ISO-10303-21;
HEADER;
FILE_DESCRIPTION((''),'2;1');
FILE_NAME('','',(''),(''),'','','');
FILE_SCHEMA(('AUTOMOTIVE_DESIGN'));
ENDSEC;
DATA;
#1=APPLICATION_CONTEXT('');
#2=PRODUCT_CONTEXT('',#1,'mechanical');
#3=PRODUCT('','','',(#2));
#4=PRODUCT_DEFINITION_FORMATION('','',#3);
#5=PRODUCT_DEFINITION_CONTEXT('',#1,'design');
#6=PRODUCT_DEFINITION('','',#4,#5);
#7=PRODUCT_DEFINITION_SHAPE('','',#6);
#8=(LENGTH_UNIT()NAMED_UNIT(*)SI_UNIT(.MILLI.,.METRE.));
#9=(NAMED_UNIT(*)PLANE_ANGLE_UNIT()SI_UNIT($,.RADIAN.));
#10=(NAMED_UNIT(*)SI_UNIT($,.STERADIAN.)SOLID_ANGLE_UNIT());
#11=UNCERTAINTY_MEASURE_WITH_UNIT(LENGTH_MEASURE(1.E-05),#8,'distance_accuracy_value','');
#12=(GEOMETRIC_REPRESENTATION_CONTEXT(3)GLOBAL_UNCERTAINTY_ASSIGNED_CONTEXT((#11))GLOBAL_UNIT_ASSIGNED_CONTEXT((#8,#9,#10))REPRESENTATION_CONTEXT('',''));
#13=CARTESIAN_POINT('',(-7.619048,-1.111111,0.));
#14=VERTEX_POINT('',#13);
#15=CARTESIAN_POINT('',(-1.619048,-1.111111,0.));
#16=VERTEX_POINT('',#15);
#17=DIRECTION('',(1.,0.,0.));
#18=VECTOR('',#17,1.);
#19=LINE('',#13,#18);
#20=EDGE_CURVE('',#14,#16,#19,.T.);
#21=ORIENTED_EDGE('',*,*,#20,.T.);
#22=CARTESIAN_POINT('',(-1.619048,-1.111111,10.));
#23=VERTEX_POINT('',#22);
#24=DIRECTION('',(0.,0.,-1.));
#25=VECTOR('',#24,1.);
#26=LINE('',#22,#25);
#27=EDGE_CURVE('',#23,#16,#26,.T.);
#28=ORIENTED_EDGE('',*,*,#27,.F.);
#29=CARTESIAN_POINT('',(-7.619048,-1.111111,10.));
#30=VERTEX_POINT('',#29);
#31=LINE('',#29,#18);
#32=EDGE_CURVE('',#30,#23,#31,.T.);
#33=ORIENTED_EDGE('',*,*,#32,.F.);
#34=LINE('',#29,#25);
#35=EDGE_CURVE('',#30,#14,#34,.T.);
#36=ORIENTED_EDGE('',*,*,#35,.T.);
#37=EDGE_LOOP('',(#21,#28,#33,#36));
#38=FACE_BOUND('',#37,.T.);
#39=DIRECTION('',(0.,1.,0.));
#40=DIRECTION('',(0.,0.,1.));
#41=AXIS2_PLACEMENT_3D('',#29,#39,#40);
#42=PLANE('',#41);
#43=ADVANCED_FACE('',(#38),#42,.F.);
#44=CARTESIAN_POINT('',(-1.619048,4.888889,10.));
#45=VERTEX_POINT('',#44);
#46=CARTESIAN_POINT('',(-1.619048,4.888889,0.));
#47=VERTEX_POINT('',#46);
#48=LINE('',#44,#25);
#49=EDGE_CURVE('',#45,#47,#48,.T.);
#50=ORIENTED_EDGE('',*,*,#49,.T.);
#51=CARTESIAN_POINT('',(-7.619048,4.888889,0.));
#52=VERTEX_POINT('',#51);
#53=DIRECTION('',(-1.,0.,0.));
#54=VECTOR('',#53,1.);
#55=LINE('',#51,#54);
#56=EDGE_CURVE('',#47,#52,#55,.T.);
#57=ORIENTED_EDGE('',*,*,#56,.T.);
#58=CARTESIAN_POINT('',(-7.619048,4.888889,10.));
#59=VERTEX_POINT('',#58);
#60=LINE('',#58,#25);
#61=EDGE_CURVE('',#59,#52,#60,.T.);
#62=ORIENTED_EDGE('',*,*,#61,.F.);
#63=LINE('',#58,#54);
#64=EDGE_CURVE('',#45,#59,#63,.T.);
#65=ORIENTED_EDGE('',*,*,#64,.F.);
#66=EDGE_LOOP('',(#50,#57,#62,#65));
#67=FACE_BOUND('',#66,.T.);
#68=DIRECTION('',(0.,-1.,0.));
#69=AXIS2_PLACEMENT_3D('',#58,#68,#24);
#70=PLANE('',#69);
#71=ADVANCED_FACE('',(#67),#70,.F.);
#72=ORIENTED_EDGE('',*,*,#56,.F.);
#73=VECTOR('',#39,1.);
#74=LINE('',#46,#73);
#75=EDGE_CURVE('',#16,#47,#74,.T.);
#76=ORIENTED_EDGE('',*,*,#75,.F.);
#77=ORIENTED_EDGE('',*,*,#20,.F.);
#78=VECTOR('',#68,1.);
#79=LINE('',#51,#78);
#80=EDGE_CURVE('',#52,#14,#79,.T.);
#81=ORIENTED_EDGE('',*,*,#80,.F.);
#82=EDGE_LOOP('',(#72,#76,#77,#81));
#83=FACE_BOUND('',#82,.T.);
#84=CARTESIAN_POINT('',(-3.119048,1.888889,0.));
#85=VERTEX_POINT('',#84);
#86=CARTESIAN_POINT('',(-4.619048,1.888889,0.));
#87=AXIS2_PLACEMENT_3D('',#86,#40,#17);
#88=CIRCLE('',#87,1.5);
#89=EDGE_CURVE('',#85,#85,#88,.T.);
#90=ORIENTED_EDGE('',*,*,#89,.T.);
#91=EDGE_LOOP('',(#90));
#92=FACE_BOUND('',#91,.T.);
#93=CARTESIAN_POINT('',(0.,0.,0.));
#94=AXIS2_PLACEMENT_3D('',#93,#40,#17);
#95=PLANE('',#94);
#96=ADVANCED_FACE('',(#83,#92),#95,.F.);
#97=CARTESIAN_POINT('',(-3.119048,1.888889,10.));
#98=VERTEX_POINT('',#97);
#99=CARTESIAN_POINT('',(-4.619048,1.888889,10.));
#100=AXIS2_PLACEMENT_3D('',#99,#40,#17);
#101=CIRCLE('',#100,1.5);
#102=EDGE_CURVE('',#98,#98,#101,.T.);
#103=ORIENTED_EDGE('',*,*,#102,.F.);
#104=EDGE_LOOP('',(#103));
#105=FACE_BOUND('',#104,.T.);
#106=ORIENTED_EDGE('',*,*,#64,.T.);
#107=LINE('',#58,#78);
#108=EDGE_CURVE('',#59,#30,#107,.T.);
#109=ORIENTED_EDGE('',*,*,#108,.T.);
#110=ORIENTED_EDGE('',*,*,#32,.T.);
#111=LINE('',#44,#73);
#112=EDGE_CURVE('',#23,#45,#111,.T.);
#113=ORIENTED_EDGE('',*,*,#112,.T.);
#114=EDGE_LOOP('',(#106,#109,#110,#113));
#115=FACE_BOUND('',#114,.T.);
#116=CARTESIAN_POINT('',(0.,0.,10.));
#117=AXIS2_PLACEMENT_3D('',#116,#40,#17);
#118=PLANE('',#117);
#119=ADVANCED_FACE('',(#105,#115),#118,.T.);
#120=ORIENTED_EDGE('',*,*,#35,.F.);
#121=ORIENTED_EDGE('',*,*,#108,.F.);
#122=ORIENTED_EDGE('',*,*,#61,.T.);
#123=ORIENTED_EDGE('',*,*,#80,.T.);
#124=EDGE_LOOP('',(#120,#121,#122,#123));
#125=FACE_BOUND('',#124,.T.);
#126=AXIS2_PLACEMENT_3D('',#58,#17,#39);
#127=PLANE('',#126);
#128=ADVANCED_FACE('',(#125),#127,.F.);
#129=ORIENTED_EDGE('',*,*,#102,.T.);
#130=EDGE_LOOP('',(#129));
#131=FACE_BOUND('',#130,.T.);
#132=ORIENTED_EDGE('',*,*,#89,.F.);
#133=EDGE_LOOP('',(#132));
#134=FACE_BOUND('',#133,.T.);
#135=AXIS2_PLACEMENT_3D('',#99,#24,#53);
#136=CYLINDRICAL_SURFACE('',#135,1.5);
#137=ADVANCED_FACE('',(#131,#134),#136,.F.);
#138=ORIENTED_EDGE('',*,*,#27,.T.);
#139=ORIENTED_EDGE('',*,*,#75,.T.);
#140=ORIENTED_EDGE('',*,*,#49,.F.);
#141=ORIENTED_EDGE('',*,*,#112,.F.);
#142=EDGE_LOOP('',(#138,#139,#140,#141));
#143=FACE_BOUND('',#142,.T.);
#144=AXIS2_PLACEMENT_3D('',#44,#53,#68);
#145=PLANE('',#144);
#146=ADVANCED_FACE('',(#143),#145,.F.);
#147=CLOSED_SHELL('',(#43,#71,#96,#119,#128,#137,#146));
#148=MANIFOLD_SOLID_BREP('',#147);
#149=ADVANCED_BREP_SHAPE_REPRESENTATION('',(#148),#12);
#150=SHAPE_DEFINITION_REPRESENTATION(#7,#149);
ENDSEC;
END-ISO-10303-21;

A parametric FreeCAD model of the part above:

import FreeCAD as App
import Part
import Sketcher
from FreeCAD import Vector
Q = App.Units.Quantity

doc = App.newDocument("Part")
body = doc.addObject("PartDesign::Body", "Body")

# Sketch on XY plane
sketch1 = body.newObject("Sketcher::SketchObject", "Sketch")
sketch1.AttachmentSupport = (doc.getObject("XY_Plane"), [""])
sketch1.MapMode = "FlatFace"
sketch1.addGeometry(Part.LineSegment(Vector(-7.6, 4.9, 0), Vector(-7.6, -1.1, 0)), False)
sketch1.addGeometry(Part.LineSegment(Vector(-7.6, -1.1, 0), Vector(-1.6, -1.1, 0)), False)
sketch1.addGeometry(Part.LineSegment(Vector(-1.6, -1.1, 0), Vector(-1.6, 4.9, 0)), False)
sketch1.addGeometry(Part.LineSegment(Vector(-1.6, 4.9, 0), Vector(-7.6, 4.9, 0)), False)
sketch1.addGeometry(Part.Circle(Vector(-4.6, 1.9, 0), Vector(0, 0, 1), 1.5), False)
sketch1.addConstraint(Sketcher.Constraint("Coincident", 0, 2, 1, 1))
sketch1.addConstraint(Sketcher.Constraint("Coincident", 1, 2, 2, 1))
sketch1.addConstraint(Sketcher.Constraint("Coincident", 2, 2, 3, 1))
sketch1.addConstraint(Sketcher.Constraint("Coincident", 3, 2, 0, 1))
sketch1.addConstraint(Sketcher.Constraint("Vertical", 0))
sketch1.addConstraint(Sketcher.Constraint("Horizontal", 1))
sketch1.addConstraint(Sketcher.Constraint("Vertical", 2))
sketch1.addConstraint(Sketcher.Constraint("Horizontal", 3))
sketch1.addConstraint(Sketcher.Constraint("Equal", 3, 0))
sketch1.addConstraint(Sketcher.Constraint("Diameter", 4, Q("3 mm")))
sketch1.addConstraint(Sketcher.Constraint("DistanceX", 1, 1, 1, 2, Q("6 mm")))
sketch1.addConstraint(Sketcher.Constraint("DistanceX", 0, 2, 4, 3, Q("3 mm")))
sketch1.addConstraint(Sketcher.Constraint("DistanceY", 0, 2, 4, 3, Q("3 mm")))
sketch1.addConstraint(Sketcher.Constraint("DistanceY", -1, 1, 4, 3, Q("1.888889 mm")))
sketch1.addConstraint(Sketcher.Constraint("DistanceX", 4, 3, -1, 1, Q("4.619048 mm")))
pad1 = body.newObject("PartDesign::Pad", "Pad")
pad1.Profile = sketch1
pad1.Length = 10

doc.recompute()
